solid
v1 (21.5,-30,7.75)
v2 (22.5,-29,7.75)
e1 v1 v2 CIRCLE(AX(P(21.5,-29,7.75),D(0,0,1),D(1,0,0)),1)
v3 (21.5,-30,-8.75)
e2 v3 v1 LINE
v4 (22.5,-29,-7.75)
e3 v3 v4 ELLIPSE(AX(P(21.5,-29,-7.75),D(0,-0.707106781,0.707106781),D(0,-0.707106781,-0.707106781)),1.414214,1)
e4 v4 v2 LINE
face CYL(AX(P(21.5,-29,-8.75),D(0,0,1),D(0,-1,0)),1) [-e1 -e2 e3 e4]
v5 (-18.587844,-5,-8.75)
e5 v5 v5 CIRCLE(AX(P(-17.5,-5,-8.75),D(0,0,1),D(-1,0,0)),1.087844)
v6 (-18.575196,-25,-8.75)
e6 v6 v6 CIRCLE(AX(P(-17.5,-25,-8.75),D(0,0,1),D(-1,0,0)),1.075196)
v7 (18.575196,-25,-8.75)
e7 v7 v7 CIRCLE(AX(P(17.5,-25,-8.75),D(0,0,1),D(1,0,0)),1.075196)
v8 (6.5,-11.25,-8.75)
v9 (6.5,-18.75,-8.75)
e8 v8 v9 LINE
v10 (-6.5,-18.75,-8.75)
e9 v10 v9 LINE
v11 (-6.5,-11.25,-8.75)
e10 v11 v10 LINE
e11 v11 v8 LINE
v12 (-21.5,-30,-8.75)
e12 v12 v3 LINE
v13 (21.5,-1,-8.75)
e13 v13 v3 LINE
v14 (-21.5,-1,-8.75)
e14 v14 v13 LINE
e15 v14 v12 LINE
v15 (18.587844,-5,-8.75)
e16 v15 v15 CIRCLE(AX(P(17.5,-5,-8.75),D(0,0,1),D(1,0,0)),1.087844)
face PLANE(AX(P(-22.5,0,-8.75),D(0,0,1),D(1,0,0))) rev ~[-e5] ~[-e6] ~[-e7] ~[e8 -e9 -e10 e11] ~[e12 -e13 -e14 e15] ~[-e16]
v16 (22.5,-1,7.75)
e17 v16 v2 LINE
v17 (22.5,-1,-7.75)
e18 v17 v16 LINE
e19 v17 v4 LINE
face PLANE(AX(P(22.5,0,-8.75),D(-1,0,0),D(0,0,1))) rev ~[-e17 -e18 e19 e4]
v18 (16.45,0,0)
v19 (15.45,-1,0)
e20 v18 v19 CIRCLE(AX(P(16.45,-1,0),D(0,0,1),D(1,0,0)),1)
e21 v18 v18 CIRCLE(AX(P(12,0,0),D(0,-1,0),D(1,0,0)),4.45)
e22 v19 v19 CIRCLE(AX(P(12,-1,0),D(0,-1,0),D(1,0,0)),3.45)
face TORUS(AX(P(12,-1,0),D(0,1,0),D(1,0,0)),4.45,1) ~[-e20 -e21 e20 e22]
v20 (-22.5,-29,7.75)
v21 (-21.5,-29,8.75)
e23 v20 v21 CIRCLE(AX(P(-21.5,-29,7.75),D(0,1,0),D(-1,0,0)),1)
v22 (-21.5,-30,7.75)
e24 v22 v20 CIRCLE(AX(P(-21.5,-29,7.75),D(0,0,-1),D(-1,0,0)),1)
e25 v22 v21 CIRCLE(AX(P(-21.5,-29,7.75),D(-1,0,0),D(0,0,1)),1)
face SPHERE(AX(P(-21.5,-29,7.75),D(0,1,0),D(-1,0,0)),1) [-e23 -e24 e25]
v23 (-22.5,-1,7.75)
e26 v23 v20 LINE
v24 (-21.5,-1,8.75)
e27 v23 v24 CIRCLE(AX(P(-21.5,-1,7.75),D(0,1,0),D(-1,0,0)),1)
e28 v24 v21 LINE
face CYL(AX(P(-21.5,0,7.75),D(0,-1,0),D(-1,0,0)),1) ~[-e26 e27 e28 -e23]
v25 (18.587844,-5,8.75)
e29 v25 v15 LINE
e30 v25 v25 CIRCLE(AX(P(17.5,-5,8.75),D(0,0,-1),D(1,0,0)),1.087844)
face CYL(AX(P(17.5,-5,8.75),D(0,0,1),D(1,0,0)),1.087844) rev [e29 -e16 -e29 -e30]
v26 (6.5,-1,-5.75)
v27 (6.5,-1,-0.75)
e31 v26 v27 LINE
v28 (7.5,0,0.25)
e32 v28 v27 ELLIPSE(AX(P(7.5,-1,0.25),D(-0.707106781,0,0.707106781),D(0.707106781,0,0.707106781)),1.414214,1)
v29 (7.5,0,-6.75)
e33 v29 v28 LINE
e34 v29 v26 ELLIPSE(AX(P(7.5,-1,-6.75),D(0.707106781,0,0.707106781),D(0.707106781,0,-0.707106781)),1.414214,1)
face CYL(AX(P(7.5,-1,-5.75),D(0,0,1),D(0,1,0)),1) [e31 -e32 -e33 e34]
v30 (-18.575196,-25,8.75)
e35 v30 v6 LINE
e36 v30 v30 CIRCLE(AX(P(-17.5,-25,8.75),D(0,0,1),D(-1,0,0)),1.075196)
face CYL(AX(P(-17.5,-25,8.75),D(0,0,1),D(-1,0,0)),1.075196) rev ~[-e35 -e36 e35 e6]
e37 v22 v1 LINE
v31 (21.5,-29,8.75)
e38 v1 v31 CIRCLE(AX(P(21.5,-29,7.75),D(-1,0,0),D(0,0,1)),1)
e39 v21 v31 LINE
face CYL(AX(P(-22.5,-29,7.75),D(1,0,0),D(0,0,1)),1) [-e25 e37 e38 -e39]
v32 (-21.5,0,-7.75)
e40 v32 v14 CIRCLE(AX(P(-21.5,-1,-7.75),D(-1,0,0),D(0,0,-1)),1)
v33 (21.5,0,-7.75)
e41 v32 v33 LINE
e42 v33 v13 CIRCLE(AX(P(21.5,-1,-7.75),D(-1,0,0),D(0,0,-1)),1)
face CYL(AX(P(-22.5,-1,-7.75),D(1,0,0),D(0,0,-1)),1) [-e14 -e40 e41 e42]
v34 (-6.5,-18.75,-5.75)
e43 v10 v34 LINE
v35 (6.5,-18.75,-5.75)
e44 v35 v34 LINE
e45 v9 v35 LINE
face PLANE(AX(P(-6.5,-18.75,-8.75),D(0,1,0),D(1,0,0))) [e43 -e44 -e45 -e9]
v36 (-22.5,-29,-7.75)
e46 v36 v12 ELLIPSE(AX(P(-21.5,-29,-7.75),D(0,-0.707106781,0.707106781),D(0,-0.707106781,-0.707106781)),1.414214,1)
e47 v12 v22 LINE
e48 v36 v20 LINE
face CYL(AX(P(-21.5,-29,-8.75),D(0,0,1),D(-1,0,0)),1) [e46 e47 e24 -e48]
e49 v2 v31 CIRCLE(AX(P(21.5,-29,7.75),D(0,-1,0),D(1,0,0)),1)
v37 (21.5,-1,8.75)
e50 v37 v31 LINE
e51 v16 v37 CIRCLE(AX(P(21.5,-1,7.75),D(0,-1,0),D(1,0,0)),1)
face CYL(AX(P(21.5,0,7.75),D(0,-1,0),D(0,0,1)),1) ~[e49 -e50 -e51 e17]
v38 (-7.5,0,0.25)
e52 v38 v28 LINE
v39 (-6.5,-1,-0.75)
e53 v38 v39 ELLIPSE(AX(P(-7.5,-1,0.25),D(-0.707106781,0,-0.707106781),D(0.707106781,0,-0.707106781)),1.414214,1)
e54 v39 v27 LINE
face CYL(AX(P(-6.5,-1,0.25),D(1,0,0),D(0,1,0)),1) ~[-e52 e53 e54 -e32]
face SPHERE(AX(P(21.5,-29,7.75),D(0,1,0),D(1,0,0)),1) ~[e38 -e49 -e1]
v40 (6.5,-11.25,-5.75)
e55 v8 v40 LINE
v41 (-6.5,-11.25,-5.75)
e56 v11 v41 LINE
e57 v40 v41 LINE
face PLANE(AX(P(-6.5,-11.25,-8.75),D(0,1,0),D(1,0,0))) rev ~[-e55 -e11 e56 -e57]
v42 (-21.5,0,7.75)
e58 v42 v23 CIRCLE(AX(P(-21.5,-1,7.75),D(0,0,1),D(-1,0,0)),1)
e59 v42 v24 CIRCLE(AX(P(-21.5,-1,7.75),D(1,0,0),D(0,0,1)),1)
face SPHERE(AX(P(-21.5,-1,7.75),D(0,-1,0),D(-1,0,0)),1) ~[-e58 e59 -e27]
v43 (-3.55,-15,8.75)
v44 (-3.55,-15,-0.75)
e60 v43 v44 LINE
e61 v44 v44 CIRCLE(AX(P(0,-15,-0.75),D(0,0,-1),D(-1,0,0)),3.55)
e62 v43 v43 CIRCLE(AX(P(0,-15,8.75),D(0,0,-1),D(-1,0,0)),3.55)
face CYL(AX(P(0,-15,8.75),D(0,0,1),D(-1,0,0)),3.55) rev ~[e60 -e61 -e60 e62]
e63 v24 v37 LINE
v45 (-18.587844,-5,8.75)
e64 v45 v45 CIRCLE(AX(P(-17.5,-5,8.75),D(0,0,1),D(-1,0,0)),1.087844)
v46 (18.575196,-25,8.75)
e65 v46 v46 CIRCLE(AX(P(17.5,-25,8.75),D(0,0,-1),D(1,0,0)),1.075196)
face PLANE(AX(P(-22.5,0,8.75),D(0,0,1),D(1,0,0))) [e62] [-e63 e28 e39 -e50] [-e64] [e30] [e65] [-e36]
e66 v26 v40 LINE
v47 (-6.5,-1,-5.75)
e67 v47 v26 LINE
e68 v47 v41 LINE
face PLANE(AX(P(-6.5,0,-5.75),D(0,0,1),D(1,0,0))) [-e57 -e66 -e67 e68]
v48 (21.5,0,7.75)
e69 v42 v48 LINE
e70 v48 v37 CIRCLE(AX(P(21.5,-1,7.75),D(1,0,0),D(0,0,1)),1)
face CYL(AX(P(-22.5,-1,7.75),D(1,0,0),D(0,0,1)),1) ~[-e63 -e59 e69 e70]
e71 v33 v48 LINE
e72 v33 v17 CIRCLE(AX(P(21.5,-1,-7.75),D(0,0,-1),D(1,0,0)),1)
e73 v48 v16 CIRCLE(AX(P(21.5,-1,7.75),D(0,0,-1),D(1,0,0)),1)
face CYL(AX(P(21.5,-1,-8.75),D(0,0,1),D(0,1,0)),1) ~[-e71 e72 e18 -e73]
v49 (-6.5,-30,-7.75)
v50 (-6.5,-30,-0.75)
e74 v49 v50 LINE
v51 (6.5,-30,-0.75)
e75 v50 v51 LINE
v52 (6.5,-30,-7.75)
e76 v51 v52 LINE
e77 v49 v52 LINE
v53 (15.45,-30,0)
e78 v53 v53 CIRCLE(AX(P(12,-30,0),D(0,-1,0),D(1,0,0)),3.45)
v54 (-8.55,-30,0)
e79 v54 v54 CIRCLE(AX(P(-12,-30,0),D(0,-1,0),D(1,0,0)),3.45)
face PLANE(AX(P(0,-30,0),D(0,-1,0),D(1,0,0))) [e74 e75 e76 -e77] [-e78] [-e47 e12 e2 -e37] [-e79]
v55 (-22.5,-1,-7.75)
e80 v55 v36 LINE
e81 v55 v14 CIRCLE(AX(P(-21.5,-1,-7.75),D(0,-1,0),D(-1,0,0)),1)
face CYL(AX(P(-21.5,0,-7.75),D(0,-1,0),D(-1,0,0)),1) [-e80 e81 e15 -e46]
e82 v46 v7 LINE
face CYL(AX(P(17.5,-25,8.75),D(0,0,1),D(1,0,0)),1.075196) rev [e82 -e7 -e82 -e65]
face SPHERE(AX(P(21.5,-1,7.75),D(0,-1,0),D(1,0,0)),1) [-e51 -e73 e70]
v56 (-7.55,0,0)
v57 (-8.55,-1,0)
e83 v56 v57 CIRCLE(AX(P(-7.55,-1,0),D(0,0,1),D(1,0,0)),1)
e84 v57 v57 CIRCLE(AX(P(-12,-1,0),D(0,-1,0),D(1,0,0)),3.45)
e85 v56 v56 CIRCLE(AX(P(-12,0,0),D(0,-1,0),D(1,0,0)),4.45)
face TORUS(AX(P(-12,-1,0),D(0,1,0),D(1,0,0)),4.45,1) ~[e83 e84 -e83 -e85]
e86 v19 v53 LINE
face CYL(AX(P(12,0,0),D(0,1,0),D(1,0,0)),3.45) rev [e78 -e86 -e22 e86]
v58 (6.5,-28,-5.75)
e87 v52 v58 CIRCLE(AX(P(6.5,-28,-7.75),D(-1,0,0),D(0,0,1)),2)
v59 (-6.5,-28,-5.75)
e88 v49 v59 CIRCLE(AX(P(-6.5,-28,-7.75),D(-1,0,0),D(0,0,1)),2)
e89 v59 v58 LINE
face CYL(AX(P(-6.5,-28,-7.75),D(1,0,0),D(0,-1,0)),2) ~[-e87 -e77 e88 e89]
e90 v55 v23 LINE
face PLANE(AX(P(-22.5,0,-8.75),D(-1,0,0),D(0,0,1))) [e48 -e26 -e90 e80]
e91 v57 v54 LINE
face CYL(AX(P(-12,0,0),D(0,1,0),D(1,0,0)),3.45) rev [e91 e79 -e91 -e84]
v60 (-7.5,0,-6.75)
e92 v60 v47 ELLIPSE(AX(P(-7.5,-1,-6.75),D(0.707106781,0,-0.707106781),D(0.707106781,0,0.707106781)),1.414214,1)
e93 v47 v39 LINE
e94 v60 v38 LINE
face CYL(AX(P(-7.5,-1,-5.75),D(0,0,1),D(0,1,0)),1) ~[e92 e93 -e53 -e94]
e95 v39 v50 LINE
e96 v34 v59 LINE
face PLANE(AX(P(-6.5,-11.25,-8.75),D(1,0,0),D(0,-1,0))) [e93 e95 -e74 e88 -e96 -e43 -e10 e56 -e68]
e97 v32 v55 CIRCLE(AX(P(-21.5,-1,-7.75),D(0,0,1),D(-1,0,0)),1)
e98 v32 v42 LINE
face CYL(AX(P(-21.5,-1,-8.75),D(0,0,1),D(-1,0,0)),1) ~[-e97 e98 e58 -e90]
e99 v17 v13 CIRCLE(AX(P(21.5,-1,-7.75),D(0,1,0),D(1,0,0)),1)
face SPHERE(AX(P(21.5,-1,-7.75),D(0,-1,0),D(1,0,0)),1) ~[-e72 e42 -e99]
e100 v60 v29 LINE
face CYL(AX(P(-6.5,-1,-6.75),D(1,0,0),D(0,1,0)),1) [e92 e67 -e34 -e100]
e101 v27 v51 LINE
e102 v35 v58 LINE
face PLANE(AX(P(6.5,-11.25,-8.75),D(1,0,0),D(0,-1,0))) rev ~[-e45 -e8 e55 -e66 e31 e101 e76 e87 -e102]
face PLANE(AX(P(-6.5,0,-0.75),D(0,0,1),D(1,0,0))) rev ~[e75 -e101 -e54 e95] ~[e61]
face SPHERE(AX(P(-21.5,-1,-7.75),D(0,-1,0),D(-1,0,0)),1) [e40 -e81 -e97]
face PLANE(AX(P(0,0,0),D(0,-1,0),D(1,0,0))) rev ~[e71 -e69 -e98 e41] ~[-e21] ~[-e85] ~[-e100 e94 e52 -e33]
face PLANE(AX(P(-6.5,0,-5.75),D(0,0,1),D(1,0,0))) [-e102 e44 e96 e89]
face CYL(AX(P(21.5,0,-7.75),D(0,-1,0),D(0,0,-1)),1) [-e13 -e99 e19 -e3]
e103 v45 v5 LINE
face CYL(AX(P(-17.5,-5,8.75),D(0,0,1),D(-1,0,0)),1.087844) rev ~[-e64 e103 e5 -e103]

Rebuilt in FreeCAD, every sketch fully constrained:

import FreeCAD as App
import Part
import Sketcher
Q = App.Units.Quantity


def edges_at(feature, points):
    """Names of the edges that pass closest to the given points."""
    edges = feature.Shape.Edges
    near = lambda p: min(range(len(edges)), key=lambda i: edges[i].distToShape(Part.Vertex(*p))[0])
    return sorted({f"Edge{near(p) + 1}" for p in points})


def add_polygon(sketch, points):
    """Adds a closed chain of lines whose ends are joined by coincident constraints."""
    first, n = sketch.GeometryCount, len(points)
    for a, b in zip(points, points[1:] + points[:1]):
        sketch.addGeometry(Part.LineSegment(App.Vector(*a, 0), App.Vector(*b, 0)), False)
    for i in range(n):
        sketch.addConstraint(Sketcher.Constraint("Coincident", first + i, 2, first + (i + 1) % n, 1))

doc = App.newDocument("Part")
body = doc.addObject("PartDesign::Body", "Body")

sketch1 = body.newObject("Sketcher::SketchObject", "Sketch")
sketch1.AttachmentSupport = (doc.getObject("XZ_Plane"), [""])
sketch1.MapMode = "FlatFace"
add_polygon(sketch1, [(-22.5, 8.8), (-22.5, -8.8), (22.5, -8.8), (22.5, 8.8)])
add_polygon(sketch1, [(6.5, -5.8), (-6.5, -5.8), (-6.5, -0.8), (6.5, -0.8)])
sketch1.addGeometry(Part.Circle(App.Vector(-12, 0, 0), App.Vector(0, 0, 1), 3.5), False)
sketch1.addGeometry(Part.Circle(App.Vector(12, 0, 0), App.Vector(0, 0, 1), 3.5), False)
sketch1.addConstraint([
    Sketcher.Constraint("Vertical", 0),
    Sketcher.Constraint("Horizontal", 1),
    Sketcher.Constraint("Vertical", 2),
    Sketcher.Constraint("Horizontal", 3),
    Sketcher.Constraint("Horizontal", 4),
    Sketcher.Constraint("Vertical", 5),
    Sketcher.Constraint("Horizontal", 6),
    Sketcher.Constraint("Vertical", 7),
    Sketcher.Constraint("Equal", 8, 9),
    Sketcher.Constraint("Symmetric", 8, 3, 9, 3, -1, 1),
    Sketcher.Constraint("Symmetric", 0, 2, 2, 2, -1, 1),
    Sketcher.Constraint("PointOnObject", 8, 3, -1),
    Sketcher.Constraint("Diameter", 8, Q("6.9 mm")),
    Sketcher.Constraint("DistanceX", 1, 1, 1, 2, Q("45 mm")),
    Sketcher.Constraint("DistanceX", 4, 2, 4, 1, Q("13 mm")),
    Sketcher.Constraint("DistanceY", 5, 1, 5, 2, Q("5 mm")),
    Sketcher.Constraint("DistanceY", 0, 2, 0, 1, Q("17.5 mm")),
    Sketcher.Constraint("DistanceX", 8, 3, -1, 1, Q("12 mm")),
    Sketcher.Constraint("DistanceX", 0, 2, 4, 2, Q("16 mm")),
    Sketcher.Constraint("DistanceY", 0, 2, 4, 2, Q("3 mm")),
])
pad1 = body.newObject("PartDesign::Pad", "Pad")
pad1.Profile = sketch1
pad1.Length = 30

sketch2 = body.newObject("Sketcher::SketchObject", "Sketch001")
sketch2.AttachmentSupport = (doc.getObject("XY_Plane"), [""])
sketch2.MapMode = "FlatFace"
sketch2.AttachmentOffset = App.Placement(App.Vector(0, 0, 8.75), App.Rotation())
sketch2.addGeometry([
    Part.Circle(App.Vector(0, -15, 0), App.Vector(0, 0, 1), 3.5),
    Part.Circle(App.Vector(-17.5, -25, 0), App.Vector(0, 0, 1), 1.1),
    Part.Circle(App.Vector(-17.5, -5, 0), App.Vector(0, 0, 1), 1.1),
], False)
sketch2.addConstraint([
    Sketcher.Constraint("PointOnObject", 0, 3, -2),
    Sketcher.Constraint("Vertical", 1, 3, 2, 3),
    Sketcher.Constraint("Diameter", 0, Q("7.1 mm")),
    Sketcher.Constraint("DistanceY", 0, 3, -1, 1, Q("15 mm")),
    Sketcher.Constraint("DistanceY", 1, 3, -1, 1, Q("25 mm")),
    Sketcher.Constraint("DistanceY", 2, 3, -1, 1, Q("5 mm")),
    Sketcher.Constraint("DistanceX", 1, 3, -1, 1, Q("17.5 mm")),
    Sketcher.Constraint("Diameter", 2, Q("2.175688 mm")),
    Sketcher.Constraint("Diameter", 1, Q("2.150392 mm")),
])
pocket1 = body.newObject("PartDesign::Pocket", "Pocket")
pocket1.Profile = sketch2
pocket1.Type = "ThroughAll"
doc.recompute()

mirrored = body.newObject("PartDesign::Mirrored", "Mirrored")
mirrored.Originals = [pocket1]
mirrored.MirrorPlane = (doc.getObject("YZ_Plane"), [""])
body.Tip = mirrored

sketch3 = body.newObject("Sketcher::SketchObject", "Sketch002")
sketch3.AttachmentSupport = (doc.getObject("XY_Plane"), [""])
sketch3.MapMode = "FlatFace"
sketch3.AttachmentOffset = App.Placement(App.Vector(0, 0, -8.75), App.Rotation())
add_polygon(sketch3, [(-6, -19), (-6, -11), (6, -11), (6, -19)])
sketch3.addConstraint([
    Sketcher.Constraint("Vertical", 0),
    Sketcher.Constraint("Horizontal", 1),
    Sketcher.Constraint("Vertical", 2),
    Sketcher.Constraint("Horizontal", 3),
    Sketcher.Constraint("DistanceX", 1, 1, 1, 2, Q("13 mm")),
    Sketcher.Constraint("DistanceY", 0, 1, 0, 2, Q("7.5 mm")),
    Sketcher.Constraint("DistanceX", 0, 2, -1, 1, Q("6.5 mm")),
    Sketcher.Constraint("DistanceY", 0, 2, -1, 1, Q("11.25 mm")),
])
pocket2 = body.newObject("PartDesign::Pocket", "Pocket001")
pocket2.Profile = sketch3
pocket2.Length = 5
pocket2.Reversed = True
doc.recompute()

fillet = body.newObject("PartDesign::Fillet", "Fillet")
fillet.Base = (pocket2, edges_at(pocket2, [
    (-22.5, -15, 8.75),
    (-22.5, -15, -8.75),
    (-22.5, 0, 0),
    (-22.5, -30, 0),
    (22.5, -15, -8.75),
    (22.5, -15, 8.75),
    (22.5, 0, 0),
    (22.5, -30, 0),
    (0, 0, -8.75),
    (0, 0, 8.75),
    (0, 0, -5.75),
    (6.5, 0, -3.25),
    (0, 0, -0.75),
    (-6.5, 0, -3.25),
    (8.55, 0, 0),
    (-15.45, 0, 0),
    (0, -30, 8.75),
]))
fillet.Radius = 1
doc.recompute()

fillet2 = body.newObject("PartDesign::Fillet", "Fillet001")
fillet2.Base = (fillet, edges_at(fillet, [(0, -30, -5.75)]))
fillet2.Radius = 2

doc.recompute()
